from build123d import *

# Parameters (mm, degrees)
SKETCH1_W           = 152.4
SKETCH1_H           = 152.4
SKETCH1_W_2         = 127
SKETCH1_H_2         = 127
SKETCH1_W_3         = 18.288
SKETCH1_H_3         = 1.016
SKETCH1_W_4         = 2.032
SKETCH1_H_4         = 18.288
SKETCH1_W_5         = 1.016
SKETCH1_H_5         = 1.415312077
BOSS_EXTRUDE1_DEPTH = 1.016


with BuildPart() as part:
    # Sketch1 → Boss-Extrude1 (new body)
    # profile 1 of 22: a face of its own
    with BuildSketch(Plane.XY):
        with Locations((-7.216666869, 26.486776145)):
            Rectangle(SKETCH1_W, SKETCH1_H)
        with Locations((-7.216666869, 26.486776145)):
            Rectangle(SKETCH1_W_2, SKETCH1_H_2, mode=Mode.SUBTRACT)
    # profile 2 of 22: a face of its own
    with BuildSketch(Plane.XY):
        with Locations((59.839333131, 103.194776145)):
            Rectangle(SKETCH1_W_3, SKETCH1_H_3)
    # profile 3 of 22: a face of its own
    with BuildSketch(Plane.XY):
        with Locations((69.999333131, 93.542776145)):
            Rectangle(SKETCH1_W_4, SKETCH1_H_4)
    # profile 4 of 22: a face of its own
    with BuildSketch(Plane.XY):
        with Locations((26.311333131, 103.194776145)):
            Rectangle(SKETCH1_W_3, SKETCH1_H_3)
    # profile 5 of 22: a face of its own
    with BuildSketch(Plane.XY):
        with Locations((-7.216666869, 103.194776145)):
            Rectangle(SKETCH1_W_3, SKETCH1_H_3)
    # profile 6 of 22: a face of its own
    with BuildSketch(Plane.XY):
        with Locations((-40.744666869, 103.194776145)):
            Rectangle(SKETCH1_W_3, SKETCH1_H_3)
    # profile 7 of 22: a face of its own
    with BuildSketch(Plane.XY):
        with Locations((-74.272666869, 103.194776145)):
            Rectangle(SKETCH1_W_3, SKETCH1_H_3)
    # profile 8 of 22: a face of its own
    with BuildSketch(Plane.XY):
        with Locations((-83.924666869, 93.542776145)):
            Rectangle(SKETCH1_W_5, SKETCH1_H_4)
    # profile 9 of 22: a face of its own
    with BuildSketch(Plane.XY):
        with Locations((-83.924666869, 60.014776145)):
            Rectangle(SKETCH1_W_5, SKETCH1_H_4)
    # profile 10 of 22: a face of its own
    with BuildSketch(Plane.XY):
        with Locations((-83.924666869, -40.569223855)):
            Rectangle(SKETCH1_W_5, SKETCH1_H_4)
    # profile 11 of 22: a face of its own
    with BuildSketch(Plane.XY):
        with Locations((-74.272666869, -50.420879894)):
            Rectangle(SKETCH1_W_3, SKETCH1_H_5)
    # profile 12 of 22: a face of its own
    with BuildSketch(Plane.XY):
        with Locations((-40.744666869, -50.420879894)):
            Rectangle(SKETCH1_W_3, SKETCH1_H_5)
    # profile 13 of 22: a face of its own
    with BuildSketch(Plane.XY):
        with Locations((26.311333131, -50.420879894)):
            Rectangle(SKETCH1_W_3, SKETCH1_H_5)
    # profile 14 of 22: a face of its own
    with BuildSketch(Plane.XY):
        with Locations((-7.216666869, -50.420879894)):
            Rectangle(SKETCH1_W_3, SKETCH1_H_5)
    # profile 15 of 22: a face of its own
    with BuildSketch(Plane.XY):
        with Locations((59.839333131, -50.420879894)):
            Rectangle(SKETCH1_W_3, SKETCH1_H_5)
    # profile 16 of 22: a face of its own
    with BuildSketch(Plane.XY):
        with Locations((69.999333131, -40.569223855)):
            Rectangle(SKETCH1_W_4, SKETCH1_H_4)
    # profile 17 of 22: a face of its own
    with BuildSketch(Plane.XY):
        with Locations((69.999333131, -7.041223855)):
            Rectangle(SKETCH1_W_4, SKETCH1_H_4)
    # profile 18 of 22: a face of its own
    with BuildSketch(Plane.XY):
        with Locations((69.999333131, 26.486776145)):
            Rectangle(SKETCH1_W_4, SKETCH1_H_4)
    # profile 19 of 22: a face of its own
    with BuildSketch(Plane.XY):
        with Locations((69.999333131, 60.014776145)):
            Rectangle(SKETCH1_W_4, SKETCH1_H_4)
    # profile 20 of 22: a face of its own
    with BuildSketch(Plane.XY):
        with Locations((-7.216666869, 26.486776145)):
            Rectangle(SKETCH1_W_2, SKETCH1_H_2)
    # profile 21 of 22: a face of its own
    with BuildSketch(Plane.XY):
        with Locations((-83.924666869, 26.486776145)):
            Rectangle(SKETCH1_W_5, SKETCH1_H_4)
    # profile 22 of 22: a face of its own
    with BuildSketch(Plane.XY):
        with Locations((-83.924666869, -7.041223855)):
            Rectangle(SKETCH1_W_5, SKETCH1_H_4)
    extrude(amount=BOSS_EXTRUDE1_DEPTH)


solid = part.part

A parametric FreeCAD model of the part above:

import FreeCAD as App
import Part
import Sketcher
from FreeCAD import Vector
Q = App.Units.Quantity


def add_polygon(sketch, points):
    """Adds a closed chain of lines whose ends are joined by coincident constraints."""
    first, n = sketch.GeometryCount, len(points)
    for a, b in zip(points, points[1:] + points[:1]):
        sketch.addGeometry(Part.LineSegment(App.Vector(*a, 0), App.Vector(*b, 0)), False)
    for i in range(n):
        sketch.addConstraint(Sketcher.Constraint("Coincident", first + i, 2, first + (i + 1) % n, 1))

doc = App.newDocument("Part")
body = doc.addObject("PartDesign::Body", "Body")

sketch1 = body.newObject("Sketcher::SketchObject", "Sketch")
sketch1.AttachmentSupport = (doc.getObject("XY_Plane"), [""])
sketch1.MapMode = "FlatFace"
add_polygon(sketch1, [(-83.4, -16.2), (-83.4, -31.4), (-84.4, -31.4), (-84.4, -49.7), (-83.4, -49.7), (-83.4, -51.1), (-65.1, -51.1), (-65.1, -49.7), (-49.9, -49.7), (-49.9, -51.1), (-31.6, -51.1), (-31.6, -49.7), (-16.4, -49.7), (-16.4, -51.1), (1.9, -51.1), (1.9, -49.7), (17.2, -49.7), (17.2, -51.1), (35.5, -51.1), (35.5, -49.7), (50.7, -49.7), (50.7, -51.1), (69, -51.1), (69, -49.7), (71, -49.7), (71, -31.4), (69, -31.4), (69, -16.2), (71, -16.2), (71, 2.1), (69, 2.1), (69, 17.3), (71, 17.3), (71, 35.6), (69, 35.6), (69, 50.9), (71, 50.9), (71, 69.2), (69, 69.2), (69, 84.4), (71, 84.4), (71, 102.7), (69, 102.7), (69, 103.7), (50.7, 103.7), (50.7, 102.7), (35.5, 102.7), (35.5, 103.7), (17.2, 103.7), (17.2, 102.7), (1.9, 102.7), (1.9, 103.7), (-16.4, 103.7), (-16.4, 102.7), (-31.6, 102.7), (-31.6, 103.7), (-49.9, 103.7), (-49.9, 102.7), (-65.1, 102.7), (-65.1, 103.7), (-83.4, 103.7), (-83.4, 102.7), (-84.4, 102.7), (-84.4, 84.4), (-83.4, 84.4), (-83.4, 69.2), (-84.4, 69.2), (-84.4, 50.9), (-83.4, 50.9), (-83.4, 35.6), (-84.4, 35.6), (-84.4, 17.3), (-83.4, 17.3), (-83.4, 2.1), (-84.4, 2.1), (-84.4, -16.2)])
sketch1.addConstraint(Sketcher.Constraint("Vertical", 0))
sketch1.addConstraint(Sketcher.Constraint("Horizontal", 1))
sketch1.addConstraint(Sketcher.Constraint("Vertical", 2))
sketch1.addConstraint(Sketcher.Constraint("Horizontal", 3))
sketch1.addConstraint(Sketcher.Constraint("Vertical", 4))
sketch1.addConstraint(Sketcher.Constraint("Horizontal", 5))
sketch1.addConstraint(Sketcher.Constraint("Vertical", 6))
sketch1.addConstraint(Sketcher.Constraint("Horizontal", 7))
sketch1.addConstraint(Sketcher.Constraint("Vertical", 8))
sketch1.addConstraint(Sketcher.Constraint("Horizontal", 9))
sketch1.addConstraint(Sketcher.Constraint("Vertical", 10))
sketch1.addConstraint(Sketcher.Constraint("Horizontal", 11))
sketch1.addConstraint(Sketcher.Constraint("Vertical", 12))
sketch1.addConstraint(Sketcher.Constraint("Horizontal", 13))
sketch1.addConstraint(Sketcher.Constraint("Vertical", 14))
sketch1.addConstraint(Sketcher.Constraint("Horizontal", 15))
sketch1.addConstraint(Sketcher.Constraint("Vertical", 16))
sketch1.addConstraint(Sketcher.Constraint("Horizontal", 17))
sketch1.addConstraint(Sketcher.Constraint("Vertical", 18))
sketch1.addConstraint(Sketcher.Constraint("Horizontal", 19))
sketch1.addConstraint(Sketcher.Constraint("Vertical", 20))
sketch1.addConstraint(Sketcher.Constraint("Horizontal", 21))
sketch1.addConstraint(Sketcher.Constraint("Vertical", 22))
sketch1.addConstraint(Sketcher.Constraint("Horizontal", 23))
sketch1.addConstraint(Sketcher.Constraint("Vertical", 24))
sketch1.addConstraint(Sketcher.Constraint("Horizontal", 25))
sketch1.addConstraint(Sketcher.Constraint("Vertical", 26))
sketch1.addConstraint(Sketcher.Constraint("Horizontal", 27))
sketch1.addConstraint(Sketcher.Constraint("Vertical", 28))
sketch1.addConstraint(Sketcher.Constraint("Horizontal", 29))
sketch1.addConstraint(Sketcher.Constraint("Vertical", 30))
sketch1.addConstraint(Sketcher.Constraint("Horizontal", 31))
sketch1.addConstraint(Sketcher.Constraint("Vertical", 32))
sketch1.addConstraint(Sketcher.Constraint("Horizontal", 33))
sketch1.addConstraint(Sketcher.Constraint("Vertical", 34))
sketch1.addConstraint(Sketcher.Constraint("Horizontal", 35))
sketch1.addConstraint(Sketcher.Constraint("Vertical", 36))
sketch1.addConstraint(Sketcher.Constraint("Horizontal", 37))
sketch1.addConstraint(Sketcher.Constraint("Vertical", 38))
sketch1.addConstraint(Sketcher.Constraint("Horizontal", 39))
sketch1.addConstraint(Sketcher.Constraint("Vertical", 40))
sketch1.addConstraint(Sketcher.Constraint("Horizontal", 41))
sketch1.addConstraint(Sketcher.Constraint("Vertical", 42))
sketch1.addConstraint(Sketcher.Constraint("Horizontal", 43))
sketch1.addConstraint(Sketcher.Constraint("Vertical", 44))
sketch1.addConstraint(Sketcher.Constraint("Horizontal", 45))
sketch1.addConstraint(Sketcher.Constraint("Vertical", 46))
sketch1.addConstraint(Sketcher.Constraint("Horizontal", 47))
sketch1.addConstraint(Sketcher.Constraint("Vertical", 48))
sketch1.addConstraint(Sketcher.Constraint("Horizontal", 49))
sketch1.addConstraint(Sketcher.Constraint("Vertical", 50))
sketch1.addConstraint(Sketcher.Constraint("Horizontal", 51))
sketch1.addConstraint(Sketcher.Constraint("Vertical", 52))
sketch1.addConstraint(Sketcher.Constraint("Horizontal", 53))
sketch1.addConstraint(Sketcher.Constraint("Vertical", 54))
sketch1.addConstraint(Sketcher.Constraint("Horizontal", 55))
sketch1.addConstraint(Sketcher.Constraint("Vertical", 56))
sketch1.addConstraint(Sketcher.Constraint("Horizontal", 57))
sketch1.addConstraint(Sketcher.Constraint("Vertical", 58))
sketch1.addConstraint(Sketcher.Constraint("Horizontal", 59))
sketch1.addConstraint(Sketcher.Constraint("Vertical", 60))
sketch1.addConstraint(Sketcher.Constraint("Horizontal", 61))
sketch1.addConstraint(Sketcher.Constraint("Vertical", 62))
sketch1.addConstraint(Sketcher.Constraint("Horizontal", 63))
sketch1.addConstraint(Sketcher.Constraint("Vertical", 64))
sketch1.addConstraint(Sketcher.Constraint("Horizontal", 65))
sketch1.addConstraint(Sketcher.Constraint("Vertical", 66))
sketch1.addConstraint(Sketcher.Constraint("Horizontal", 67))
sketch1.addConstraint(Sketcher.Constraint("Vertical", 68))
sketch1.addConstraint(Sketcher.Constraint("Horizontal", 69))
sketch1.addConstraint(Sketcher.Constraint("Vertical", 70))
sketch1.addConstraint(Sketcher.Constraint("Horizontal", 71))
sketch1.addConstraint(Sketcher.Constraint("Vertical", 72))
sketch1.addConstraint(Sketcher.Constraint("Horizontal", 73))
sketch1.addConstraint(Sketcher.Constraint("Vertical", 74))
sketch1.addConstraint(Sketcher.Constraint("Horizontal", 75))
sketch1.addConstraint(Sketcher.Constraint("Horizontal", 3, 2, 6, 2))
sketch1.addConstraint(Sketcher.Constraint("Horizontal", 5, 2, 8, 2))
sketch1.addConstraint(Sketcher.Constraint("Horizontal", 7, 2, 10, 2))
sketch1.addConstraint(Sketcher.Constraint("Horizontal", 9, 2, 12, 2))
sketch1.addConstraint(Sketcher.Constraint("Horizontal", 11, 2, 14, 2))
sketch1.addConstraint(Sketcher.Constraint("Horizontal", 13, 2, 16, 2))
sketch1.addConstraint(Sketcher.Constraint("Horizontal", 15, 2, 18, 2))
sketch1.addConstraint(Sketcher.Constraint("Horizontal", 17, 2, 20, 2))
sketch1.addConstraint(Sketcher.Constraint("Horizontal", 19, 2, 22, 2))
sketch1.addConstraint(Sketcher.Constraint("Horizontal", 1, 2, 24, 2))
sketch1.addConstraint(Sketcher.Constraint("Horizontal", 41, 2, 44, 2))
sketch1.addConstraint(Sketcher.Constraint("Horizontal", 43, 2, 46, 2))
sketch1.addConstraint(Sketcher.Constraint("Horizontal", 45, 2, 48, 2))
sketch1.addConstraint(Sketcher.Constraint("Horizontal", 47, 2, 50, 2))
sketch1.addConstraint(Sketcher.Constraint("Horizontal", 49, 2, 52, 2))
sketch1.addConstraint(Sketcher.Constraint("Horizontal", 51, 2, 54, 2))
sketch1.addConstraint(Sketcher.Constraint("Horizontal", 53, 2, 56, 2))
sketch1.addConstraint(Sketcher.Constraint("Horizontal", 55, 2, 58, 2))
sketch1.addConstraint(Sketcher.Constraint("Horizontal", 57, 2, 60, 2))
sketch1.addConstraint(Sketcher.Constraint("Horizontal", 39, 2, 62, 2))
sketch1.addConstraint(Sketcher.Constraint("Horizontal", 37, 2, 64, 2))
sketch1.addConstraint(Sketcher.Constraint("Horizontal", 35, 2, 66, 2))
sketch1.addConstraint(Sketcher.Constraint("Horizontal", 33, 2, 68, 2))
sketch1.addConstraint(Sketcher.Constraint("Horizontal", 31, 2, 70, 2))
sketch1.addConstraint(Sketcher.Constraint("Horizontal", 29, 2, 72, 2))
sketch1.addConstraint(Sketcher.Constraint("Horizontal", 27, 2, 74, 2))
sketch1.addConstraint(Sketcher.Constraint("Vertical", 0, 2, 3, 2))
sketch1.addConstraint(Sketcher.Constraint("Vertical", 22, 2, 25, 2))
sketch1.addConstraint(Sketcher.Constraint("Vertical", 24, 2, 27, 2))
sketch1.addConstraint(Sketcher.Constraint("Vertical", 26, 2, 29, 2))
sketch1.addConstraint(Sketcher.Constraint("Vertical", 28, 2, 31, 2))
sketch1.addConstraint(Sketcher.Constraint("Vertical", 30, 2, 33, 2))
sketch1.addConstraint(Sketcher.Constraint("Vertical", 32, 2, 35, 2))
sketch1.addConstraint(Sketcher.Constraint("Vertical", 34, 2, 37, 2))
sketch1.addConstraint(Sketcher.Constraint("Vertical", 36, 2, 39, 2))
sketch1.addConstraint(Sketcher.Constraint("Vertical", 38, 2, 41, 2))
sketch1.addConstraint(Sketcher.Constraint("Vertical", 20, 2, 43, 2))
sketch1.addConstraint(Sketcher.Constraint("Vertical", 18, 2, 45, 2))
sketch1.addConstraint(Sketcher.Constraint("Vertical", 16, 2, 47, 2))
sketch1.addConstraint(Sketcher.Constraint("Vertical", 14, 2, 49, 2))
sketch1.addConstraint(Sketcher.Constraint("Vertical", 12, 2, 51, 2))
sketch1.addConstraint(Sketcher.Constraint("Vertical", 10, 2, 53, 2))
sketch1.addConstraint(Sketcher.Constraint("Vertical", 8, 2, 55, 2))
sketch1.addConstraint(Sketcher.Constraint("Vertical", 6, 2, 57, 2))
sketch1.addConstraint(Sketcher.Constraint("Vertical", 4, 2, 59, 2))
sketch1.addConstraint(Sketcher.Constraint("Vertical", 2, 2, 61, 2))
sketch1.addConstraint(Sketcher.Constraint("Vertical", 60, 2, 63, 2))
sketch1.addConstraint(Sketcher.Constraint("Vertical", 62, 2, 65, 2))
sketch1.addConstraint(Sketcher.Constraint("Vertical", 64, 2, 67, 2))
sketch1.addConstraint(Sketcher.Constraint("Vertical", 66, 2, 69, 2))
sketch1.addConstraint(Sketcher.Constraint("Vertical", 68, 2, 71, 2))
sketch1.addConstraint(Sketcher.Constraint("Vertical", 70, 2, 73, 2))
sketch1.addConstraint(Sketcher.Constraint("Equal", 5, 9))
sketch1.addConstraint(Sketcher.Constraint("Equal", 7, 11))
sketch1.addConstraint(Sketcher.Constraint("Equal", 9, 13))
sketch1.addConstraint(Sketcher.Constraint("Equal", 11, 15))
sketch1.addConstraint(Sketcher.Constraint("Equal", 13, 17))
sketch1.addConstraint(Sketcher.Constraint("Equal", 15, 19))
sketch1.addConstraint(Sketcher.Constraint("Equal", 17, 21))
sketch1.addConstraint(Sketcher.Constraint("Equal", 57, 0))
sketch1.addConstraint(Sketcher.Constraint("Equal", 59, 2))
sketch1.addConstraint(Sketcher.Constraint("Equal", 24, 28))
sketch1.addConstraint(Sketcher.Constraint("Equal", 26, 30))
sketch1.addConstraint(Sketcher.Constraint("Equal", 28, 32))
sketch1.addConstraint(Sketcher.Constraint("Equal", 30, 34))
sketch1.addConstraint(Sketcher.Constraint("Equal", 32, 36))
sketch1.addConstraint(Sketcher.Constraint("Equal", 34, 38))
sketch1.addConstraint(Sketcher.Constraint("Equal", 36, 40))
sketch1.addConstraint(Sketcher.Constraint("Equal", 75, 42))
sketch1.addConstraint(Sketcher.Constraint("DistanceX", 7, 1, 7, 2, Q("0.6 in")))
sketch1.addConstraint(Sketcher.Constraint("DistanceX", 1, 2, 1, 1, Q("0.04 in")))
sketch1.addConstraint(Sketcher.Constraint("DistanceX", 5, 1, 5, 2, Q("0.72 in")))
sketch1.addConstraint(Sketcher.Constraint("DistanceX", 23, 1, 23, 2, Q("0.08 in")))
sketch1.addConstraint(Sketcher.Constraint("DistanceY", 4, 2, 4, 1, 1.415312))
sketch1.addConstraint(Sketcher.Constraint("DistanceX", 0, 2, -1, 1, 83.416667))
sketch1.addConstraint(Sketcher.Constraint("DistanceY", 0, 2, -1, 1, 31.425224))
pad1 = body.newObject("PartDesign::Pad", "Pad")
pad1.Profile = sketch1
pad1.Length = Q("0.04 in")

doc.recompute()
